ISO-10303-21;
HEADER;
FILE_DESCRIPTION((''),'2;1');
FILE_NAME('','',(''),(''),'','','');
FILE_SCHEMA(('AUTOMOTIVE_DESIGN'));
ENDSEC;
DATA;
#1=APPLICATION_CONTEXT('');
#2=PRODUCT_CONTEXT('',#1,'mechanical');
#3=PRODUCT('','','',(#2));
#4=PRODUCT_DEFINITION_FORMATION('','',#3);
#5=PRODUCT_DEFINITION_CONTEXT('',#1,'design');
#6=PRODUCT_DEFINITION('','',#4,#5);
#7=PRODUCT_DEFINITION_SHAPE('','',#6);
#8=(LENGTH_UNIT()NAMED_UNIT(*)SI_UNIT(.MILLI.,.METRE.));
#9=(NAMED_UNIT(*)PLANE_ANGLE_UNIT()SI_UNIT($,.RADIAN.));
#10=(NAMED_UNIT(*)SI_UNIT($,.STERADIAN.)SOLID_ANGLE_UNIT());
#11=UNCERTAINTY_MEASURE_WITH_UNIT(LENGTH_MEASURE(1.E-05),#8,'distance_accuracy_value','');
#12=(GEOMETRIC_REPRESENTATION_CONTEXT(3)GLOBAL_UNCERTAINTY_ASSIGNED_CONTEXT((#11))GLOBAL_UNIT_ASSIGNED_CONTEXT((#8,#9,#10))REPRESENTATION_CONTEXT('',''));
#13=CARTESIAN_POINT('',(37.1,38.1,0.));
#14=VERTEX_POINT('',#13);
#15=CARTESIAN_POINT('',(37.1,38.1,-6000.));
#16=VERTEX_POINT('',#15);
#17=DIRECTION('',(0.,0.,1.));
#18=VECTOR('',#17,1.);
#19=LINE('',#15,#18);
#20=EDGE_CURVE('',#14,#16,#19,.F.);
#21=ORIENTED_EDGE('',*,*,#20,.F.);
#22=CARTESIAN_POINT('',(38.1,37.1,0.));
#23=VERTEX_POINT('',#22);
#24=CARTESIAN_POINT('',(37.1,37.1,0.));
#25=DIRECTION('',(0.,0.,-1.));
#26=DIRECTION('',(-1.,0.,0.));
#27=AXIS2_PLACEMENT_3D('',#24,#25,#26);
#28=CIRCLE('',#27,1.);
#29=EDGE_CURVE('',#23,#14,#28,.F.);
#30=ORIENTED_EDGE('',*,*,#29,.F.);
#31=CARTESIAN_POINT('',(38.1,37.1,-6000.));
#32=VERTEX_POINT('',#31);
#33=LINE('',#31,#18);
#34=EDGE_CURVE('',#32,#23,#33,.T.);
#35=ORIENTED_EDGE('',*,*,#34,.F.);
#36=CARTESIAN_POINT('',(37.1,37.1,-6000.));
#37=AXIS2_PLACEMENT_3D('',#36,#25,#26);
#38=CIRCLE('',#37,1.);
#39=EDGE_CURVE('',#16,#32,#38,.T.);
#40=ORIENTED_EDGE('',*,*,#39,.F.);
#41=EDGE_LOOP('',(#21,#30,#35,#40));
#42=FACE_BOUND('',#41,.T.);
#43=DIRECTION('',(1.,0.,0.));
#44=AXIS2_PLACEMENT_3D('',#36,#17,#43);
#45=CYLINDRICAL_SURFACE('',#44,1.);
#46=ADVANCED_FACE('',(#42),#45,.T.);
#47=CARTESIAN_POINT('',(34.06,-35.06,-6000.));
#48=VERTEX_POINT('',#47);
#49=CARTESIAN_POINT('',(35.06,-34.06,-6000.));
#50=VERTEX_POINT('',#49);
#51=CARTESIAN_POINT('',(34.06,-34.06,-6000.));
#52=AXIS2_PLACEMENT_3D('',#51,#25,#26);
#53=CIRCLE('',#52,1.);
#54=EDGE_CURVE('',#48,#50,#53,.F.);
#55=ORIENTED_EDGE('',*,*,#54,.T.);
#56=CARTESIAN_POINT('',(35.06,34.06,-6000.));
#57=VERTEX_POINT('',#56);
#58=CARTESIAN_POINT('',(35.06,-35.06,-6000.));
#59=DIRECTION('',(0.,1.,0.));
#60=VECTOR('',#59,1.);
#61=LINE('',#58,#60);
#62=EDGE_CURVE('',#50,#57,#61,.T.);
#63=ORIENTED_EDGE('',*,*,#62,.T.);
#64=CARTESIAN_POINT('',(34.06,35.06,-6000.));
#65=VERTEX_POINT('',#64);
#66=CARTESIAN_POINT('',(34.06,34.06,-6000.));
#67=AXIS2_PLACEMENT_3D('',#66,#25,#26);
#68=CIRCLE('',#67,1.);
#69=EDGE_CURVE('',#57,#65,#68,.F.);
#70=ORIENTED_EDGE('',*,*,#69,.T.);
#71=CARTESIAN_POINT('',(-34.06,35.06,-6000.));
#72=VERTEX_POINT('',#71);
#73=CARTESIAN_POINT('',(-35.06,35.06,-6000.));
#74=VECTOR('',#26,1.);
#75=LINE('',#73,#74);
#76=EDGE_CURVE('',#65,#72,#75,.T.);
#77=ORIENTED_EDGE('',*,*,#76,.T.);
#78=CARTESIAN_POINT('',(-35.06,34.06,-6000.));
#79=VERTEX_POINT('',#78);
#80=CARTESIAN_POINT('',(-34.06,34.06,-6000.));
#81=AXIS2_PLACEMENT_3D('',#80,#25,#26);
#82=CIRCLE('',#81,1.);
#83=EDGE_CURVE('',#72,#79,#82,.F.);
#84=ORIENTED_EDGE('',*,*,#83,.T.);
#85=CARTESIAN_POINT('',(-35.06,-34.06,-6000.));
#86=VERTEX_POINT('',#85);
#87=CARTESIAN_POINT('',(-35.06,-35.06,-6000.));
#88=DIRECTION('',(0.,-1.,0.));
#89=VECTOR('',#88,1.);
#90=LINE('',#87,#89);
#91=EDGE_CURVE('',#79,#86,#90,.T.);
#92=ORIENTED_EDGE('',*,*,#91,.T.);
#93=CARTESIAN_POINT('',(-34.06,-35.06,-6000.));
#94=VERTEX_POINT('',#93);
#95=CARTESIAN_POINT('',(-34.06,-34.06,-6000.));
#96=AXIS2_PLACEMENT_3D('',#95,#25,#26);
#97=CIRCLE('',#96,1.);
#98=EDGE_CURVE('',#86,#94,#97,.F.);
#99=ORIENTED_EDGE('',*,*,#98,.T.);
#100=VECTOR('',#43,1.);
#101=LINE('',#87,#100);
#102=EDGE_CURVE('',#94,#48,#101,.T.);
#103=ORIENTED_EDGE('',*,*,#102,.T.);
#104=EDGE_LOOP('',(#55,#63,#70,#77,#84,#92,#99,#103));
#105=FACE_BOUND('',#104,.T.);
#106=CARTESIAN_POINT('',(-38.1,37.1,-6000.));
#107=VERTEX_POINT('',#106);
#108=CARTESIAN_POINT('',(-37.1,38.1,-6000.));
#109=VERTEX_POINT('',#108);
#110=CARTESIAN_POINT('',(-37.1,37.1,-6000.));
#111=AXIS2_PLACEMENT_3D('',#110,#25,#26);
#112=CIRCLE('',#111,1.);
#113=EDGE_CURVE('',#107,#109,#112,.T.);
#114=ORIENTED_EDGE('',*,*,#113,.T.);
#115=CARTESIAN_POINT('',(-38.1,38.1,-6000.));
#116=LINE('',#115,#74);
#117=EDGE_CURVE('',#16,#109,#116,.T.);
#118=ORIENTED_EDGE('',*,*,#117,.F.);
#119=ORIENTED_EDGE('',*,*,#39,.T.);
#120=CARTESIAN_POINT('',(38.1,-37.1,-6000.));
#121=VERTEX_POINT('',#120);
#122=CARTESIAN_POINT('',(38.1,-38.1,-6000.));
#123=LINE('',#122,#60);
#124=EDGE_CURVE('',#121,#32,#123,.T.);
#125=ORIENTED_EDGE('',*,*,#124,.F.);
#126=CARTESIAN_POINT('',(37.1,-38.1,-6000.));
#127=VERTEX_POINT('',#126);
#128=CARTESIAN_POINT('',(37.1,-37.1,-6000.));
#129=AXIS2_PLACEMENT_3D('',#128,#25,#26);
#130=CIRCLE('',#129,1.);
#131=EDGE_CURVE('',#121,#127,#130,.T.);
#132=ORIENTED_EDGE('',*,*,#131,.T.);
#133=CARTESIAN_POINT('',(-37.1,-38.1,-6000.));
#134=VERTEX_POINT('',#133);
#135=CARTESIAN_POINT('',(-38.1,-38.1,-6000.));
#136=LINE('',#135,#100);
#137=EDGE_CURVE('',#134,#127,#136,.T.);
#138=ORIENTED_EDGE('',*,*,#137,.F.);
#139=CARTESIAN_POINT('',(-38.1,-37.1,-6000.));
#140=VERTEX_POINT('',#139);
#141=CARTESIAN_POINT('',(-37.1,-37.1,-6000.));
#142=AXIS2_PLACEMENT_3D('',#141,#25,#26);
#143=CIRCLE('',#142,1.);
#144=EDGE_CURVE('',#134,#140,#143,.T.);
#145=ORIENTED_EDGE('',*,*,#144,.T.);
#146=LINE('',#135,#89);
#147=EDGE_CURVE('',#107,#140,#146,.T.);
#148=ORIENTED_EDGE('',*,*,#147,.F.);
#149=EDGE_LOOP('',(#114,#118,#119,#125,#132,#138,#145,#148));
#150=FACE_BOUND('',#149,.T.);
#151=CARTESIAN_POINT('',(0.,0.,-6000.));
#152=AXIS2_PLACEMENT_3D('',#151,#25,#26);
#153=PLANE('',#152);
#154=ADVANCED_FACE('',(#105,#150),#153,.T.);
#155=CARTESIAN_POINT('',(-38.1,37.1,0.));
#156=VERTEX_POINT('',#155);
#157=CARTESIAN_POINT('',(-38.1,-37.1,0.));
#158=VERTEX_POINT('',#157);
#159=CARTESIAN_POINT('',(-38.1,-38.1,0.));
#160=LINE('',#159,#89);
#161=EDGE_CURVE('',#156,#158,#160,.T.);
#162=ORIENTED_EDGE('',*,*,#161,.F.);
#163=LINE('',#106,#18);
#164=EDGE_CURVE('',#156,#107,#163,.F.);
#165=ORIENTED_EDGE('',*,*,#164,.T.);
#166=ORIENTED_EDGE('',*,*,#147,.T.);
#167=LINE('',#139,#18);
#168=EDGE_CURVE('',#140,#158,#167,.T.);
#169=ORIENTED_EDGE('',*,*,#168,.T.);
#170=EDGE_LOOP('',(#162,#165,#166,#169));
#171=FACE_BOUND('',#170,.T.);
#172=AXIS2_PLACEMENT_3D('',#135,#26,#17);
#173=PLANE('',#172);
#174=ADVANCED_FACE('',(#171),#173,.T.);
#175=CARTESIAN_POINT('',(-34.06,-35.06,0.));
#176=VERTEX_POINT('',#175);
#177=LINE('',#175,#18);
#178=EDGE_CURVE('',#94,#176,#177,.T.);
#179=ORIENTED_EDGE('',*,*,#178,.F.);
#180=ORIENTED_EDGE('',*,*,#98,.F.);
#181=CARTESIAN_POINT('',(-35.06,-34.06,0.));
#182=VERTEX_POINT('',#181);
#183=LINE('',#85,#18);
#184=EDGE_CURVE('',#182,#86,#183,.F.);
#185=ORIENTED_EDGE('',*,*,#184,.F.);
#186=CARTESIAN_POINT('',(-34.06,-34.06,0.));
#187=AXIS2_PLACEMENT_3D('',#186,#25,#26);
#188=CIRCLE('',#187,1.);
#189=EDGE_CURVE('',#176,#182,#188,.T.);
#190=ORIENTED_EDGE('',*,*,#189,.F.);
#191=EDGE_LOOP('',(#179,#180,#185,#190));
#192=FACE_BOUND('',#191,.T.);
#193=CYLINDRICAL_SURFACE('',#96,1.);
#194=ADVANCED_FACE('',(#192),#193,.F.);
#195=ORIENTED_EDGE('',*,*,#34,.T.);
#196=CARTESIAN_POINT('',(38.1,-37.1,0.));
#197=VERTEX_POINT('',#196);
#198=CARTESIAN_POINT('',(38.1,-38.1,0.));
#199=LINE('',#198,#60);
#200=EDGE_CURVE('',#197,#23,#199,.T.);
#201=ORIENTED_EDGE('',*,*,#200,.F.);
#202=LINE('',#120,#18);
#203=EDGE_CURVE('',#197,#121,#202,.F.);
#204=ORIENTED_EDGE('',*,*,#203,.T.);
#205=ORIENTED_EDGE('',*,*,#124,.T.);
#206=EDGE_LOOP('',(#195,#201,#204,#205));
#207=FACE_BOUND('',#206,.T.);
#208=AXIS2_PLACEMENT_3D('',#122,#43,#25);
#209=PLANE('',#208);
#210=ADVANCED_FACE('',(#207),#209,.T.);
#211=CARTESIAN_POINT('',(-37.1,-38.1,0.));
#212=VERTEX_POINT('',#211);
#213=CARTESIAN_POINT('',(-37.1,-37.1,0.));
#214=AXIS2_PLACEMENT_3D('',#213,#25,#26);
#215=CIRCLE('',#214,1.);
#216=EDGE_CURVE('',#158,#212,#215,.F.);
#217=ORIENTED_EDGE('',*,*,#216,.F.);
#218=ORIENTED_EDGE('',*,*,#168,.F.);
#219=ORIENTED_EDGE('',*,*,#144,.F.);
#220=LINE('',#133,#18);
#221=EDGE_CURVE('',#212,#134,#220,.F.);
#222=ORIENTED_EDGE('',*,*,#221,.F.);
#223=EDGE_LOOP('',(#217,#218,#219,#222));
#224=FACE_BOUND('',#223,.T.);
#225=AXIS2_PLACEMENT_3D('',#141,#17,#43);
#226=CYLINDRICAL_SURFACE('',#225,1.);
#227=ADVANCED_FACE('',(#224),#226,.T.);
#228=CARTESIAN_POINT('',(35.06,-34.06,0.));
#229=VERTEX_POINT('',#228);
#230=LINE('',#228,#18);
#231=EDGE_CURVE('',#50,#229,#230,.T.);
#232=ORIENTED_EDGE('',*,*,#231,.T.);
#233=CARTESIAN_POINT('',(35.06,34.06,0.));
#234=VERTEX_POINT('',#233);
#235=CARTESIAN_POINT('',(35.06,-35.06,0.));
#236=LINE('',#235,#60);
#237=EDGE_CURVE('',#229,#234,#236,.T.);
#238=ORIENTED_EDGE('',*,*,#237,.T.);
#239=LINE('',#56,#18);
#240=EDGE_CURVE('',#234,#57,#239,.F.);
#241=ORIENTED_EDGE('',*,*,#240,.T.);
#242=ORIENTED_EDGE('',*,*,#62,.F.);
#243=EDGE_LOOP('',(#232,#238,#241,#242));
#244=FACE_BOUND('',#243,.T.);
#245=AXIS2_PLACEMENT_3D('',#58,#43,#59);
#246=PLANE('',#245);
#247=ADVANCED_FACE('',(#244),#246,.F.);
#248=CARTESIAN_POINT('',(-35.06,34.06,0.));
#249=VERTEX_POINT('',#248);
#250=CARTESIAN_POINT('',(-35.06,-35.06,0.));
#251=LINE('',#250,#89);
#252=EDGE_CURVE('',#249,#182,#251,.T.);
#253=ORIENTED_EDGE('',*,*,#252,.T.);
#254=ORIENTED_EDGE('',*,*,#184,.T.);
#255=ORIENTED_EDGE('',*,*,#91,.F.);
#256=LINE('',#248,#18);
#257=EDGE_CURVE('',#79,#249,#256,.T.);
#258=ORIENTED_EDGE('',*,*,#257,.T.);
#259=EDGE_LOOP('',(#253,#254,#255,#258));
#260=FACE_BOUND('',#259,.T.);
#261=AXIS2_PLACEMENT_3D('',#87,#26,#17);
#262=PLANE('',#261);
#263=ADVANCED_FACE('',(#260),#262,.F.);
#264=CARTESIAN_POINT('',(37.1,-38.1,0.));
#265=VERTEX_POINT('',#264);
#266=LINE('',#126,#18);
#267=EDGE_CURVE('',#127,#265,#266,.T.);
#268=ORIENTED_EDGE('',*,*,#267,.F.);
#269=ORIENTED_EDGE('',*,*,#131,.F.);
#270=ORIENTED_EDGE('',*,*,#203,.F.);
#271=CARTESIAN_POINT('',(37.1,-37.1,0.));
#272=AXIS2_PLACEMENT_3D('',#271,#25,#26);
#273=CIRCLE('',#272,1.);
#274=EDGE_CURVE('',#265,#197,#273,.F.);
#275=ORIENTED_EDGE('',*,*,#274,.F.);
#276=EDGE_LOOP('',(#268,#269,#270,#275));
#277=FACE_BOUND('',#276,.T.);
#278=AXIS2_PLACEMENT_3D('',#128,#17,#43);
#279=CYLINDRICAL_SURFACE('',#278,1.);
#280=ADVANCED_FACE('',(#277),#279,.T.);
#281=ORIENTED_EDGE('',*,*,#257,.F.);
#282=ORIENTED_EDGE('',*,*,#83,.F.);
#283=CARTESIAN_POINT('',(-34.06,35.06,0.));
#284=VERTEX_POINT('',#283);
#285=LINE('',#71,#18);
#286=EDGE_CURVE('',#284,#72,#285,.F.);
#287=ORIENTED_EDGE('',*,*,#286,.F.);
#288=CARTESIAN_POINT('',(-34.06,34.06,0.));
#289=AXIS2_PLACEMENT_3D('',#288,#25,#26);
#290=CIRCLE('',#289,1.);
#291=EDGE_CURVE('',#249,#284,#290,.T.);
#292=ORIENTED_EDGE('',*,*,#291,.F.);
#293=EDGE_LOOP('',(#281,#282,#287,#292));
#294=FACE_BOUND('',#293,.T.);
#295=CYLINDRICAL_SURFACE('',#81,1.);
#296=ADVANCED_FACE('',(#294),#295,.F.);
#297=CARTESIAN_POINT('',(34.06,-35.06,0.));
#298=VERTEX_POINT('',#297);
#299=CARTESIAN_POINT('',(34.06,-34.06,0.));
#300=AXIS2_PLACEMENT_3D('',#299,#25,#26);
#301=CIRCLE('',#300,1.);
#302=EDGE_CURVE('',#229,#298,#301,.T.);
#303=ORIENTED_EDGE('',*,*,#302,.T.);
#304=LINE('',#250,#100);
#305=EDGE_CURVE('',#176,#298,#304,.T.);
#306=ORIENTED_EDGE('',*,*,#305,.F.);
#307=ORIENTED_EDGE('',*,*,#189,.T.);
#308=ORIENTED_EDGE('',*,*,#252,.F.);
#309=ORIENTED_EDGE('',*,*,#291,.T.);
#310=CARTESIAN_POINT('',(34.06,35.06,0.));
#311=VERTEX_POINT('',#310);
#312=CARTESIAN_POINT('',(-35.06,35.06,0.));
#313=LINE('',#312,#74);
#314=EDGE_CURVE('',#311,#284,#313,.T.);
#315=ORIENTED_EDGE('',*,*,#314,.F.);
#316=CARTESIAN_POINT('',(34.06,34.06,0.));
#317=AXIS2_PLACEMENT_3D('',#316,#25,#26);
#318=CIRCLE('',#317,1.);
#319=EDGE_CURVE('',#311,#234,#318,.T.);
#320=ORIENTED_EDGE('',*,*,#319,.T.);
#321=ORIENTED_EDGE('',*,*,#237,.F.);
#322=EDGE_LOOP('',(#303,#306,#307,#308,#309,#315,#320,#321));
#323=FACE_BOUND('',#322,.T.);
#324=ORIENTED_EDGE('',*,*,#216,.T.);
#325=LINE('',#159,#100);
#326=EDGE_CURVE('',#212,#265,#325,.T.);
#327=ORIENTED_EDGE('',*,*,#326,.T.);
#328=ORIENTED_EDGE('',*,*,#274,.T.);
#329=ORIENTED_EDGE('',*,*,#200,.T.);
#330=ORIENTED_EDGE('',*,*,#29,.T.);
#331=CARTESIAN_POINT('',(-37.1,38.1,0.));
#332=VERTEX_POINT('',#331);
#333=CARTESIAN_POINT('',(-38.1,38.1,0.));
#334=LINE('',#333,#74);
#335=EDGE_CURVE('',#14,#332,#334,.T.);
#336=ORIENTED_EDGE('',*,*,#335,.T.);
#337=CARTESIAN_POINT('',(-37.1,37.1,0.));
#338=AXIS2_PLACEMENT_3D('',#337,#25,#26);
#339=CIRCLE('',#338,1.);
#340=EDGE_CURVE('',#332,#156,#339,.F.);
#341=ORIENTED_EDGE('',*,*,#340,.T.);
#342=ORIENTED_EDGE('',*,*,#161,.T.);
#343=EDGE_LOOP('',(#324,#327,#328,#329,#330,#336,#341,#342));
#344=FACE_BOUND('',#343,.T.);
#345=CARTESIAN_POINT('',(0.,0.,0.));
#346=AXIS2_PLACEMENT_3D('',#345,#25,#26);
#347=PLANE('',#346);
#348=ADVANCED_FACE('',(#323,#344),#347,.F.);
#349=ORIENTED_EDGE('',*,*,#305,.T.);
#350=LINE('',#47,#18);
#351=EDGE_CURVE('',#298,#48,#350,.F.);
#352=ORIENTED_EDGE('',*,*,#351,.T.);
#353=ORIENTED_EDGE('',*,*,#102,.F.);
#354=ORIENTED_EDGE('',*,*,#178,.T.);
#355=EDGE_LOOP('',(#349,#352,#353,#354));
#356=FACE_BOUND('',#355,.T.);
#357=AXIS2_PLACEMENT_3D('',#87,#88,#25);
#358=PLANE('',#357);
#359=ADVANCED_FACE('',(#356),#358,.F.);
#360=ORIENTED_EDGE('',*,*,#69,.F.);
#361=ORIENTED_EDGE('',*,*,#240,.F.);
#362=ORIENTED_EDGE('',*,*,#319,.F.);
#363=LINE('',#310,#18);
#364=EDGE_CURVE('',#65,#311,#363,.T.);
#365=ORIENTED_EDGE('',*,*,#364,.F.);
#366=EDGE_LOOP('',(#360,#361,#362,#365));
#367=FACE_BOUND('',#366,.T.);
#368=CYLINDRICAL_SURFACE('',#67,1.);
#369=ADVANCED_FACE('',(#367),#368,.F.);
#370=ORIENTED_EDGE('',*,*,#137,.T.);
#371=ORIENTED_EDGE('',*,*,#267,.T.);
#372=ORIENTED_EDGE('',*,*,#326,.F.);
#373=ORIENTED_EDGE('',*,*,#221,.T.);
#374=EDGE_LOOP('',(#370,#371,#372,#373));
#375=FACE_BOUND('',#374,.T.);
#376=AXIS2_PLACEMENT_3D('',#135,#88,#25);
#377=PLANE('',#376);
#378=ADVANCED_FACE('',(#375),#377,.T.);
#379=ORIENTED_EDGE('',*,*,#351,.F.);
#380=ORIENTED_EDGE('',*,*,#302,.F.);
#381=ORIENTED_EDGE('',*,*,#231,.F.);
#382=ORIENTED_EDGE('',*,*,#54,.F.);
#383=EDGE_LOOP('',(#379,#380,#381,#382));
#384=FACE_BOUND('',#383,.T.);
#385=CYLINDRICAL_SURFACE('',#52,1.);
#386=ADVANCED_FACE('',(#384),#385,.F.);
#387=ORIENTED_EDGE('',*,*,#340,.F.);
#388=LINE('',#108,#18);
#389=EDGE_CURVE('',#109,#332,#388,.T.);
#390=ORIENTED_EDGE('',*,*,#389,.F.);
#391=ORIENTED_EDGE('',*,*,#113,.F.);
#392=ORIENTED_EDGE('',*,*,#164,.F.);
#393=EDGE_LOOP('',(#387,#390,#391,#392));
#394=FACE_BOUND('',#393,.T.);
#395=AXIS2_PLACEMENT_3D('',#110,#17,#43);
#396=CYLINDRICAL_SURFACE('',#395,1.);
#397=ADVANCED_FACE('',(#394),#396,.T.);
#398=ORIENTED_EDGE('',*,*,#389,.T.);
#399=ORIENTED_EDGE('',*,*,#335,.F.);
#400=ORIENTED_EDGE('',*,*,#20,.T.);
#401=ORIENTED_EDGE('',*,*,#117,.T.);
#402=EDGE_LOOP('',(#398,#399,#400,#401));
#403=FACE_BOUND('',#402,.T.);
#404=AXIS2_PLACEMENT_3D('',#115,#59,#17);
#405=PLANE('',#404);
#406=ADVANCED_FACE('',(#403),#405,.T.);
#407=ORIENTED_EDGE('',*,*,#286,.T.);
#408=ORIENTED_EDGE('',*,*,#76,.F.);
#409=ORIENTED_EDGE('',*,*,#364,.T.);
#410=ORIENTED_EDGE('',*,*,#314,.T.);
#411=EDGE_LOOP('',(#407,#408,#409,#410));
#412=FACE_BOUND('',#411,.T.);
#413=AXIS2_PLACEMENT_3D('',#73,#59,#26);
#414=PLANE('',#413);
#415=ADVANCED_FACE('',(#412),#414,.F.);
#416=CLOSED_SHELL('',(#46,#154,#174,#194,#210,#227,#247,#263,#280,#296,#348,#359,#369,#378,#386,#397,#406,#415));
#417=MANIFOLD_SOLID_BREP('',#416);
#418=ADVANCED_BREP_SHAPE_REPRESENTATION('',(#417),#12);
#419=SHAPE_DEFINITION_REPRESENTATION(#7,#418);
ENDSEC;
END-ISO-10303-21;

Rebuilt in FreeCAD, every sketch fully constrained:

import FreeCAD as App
import Part
import Sketcher
from FreeCAD import Vector


def edges_at(feature, points):
    """Names of the edges that pass closest to the given points."""
    edges = feature.Shape.Edges
    near = lambda p: min(range(len(edges)), key=lambda i: edges[i].distToShape(Part.Vertex(*p))[0])
    return sorted({f"Edge{near(p) + 1}" for p in points})


def add_polygon(sketch, points):
    """Adds a closed chain of lines whose ends are joined by coincident constraints."""
    first, n = sketch.GeometryCount, len(points)
    for a, b in zip(points, points[1:] + points[:1]):
        sketch.addGeometry(Part.LineSegment(App.Vector(*a, 0), App.Vector(*b, 0)), False)
    for i in range(n):
        sketch.addConstraint(Sketcher.Constraint("Coincident", first + i, 2, first + (i + 1) % n, 1))

doc = App.newDocument("Part")
body = doc.addObject("PartDesign::Body", "Body")

# Sketch on XY plane
sketch1 = doc.addObject("Sketcher::SketchObject", "Sketch")
body.addObject(sketch1)
sketch1.AttachmentSupport = (doc.XY_Plane, [""])
sketch1.MapMode = "FlatFace"
add_polygon(sketch1, [(-38.1, 38.1), (-38.1, -38.1), (38.1, -38.1), (38.1, 38.1)])  # lines 0-3
add_polygon(sketch1, [(35.06, -35.06), (-35.06, -35.06), (-35.06, 35.06), (35.06, 35.06)])  # lines 4-7
sketch1.addConstraint(Sketcher.Constraint("Vertical", 0))
sketch1.addConstraint(Sketcher.Constraint("Horizontal", 1))
sketch1.addConstraint(Sketcher.Constraint("Vertical", 2))
sketch1.addConstraint(Sketcher.Constraint("Horizontal", 3))
sketch1.addConstraint(Sketcher.Constraint("Horizontal", 4))
sketch1.addConstraint(Sketcher.Constraint("Vertical", 5))
sketch1.addConstraint(Sketcher.Constraint("Horizontal", 6))
sketch1.addConstraint(Sketcher.Constraint("Vertical", 7))
sketch1.addConstraint(Sketcher.Constraint("Symmetric", 0, 2, 2, 2, -1, 1))
sketch1.addConstraint(Sketcher.Constraint("Symmetric", 4, 2, 6, 2, -1, 1))
sketch1.addConstraint(Sketcher.Constraint("Equal", 3, 0))
sketch1.addConstraint(Sketcher.Constraint("Equal", 6, 5))
sketch1.addConstraint(Sketcher.Constraint("DistanceX", 1, 1, 1, 2, 76.2))
sketch1.addConstraint(Sketcher.Constraint("DistanceX", 4, 2, 4, 1, 70.12))
pad1 = doc.addObject("PartDesign::Pad", "Pad")
body.addObject(pad1)
pad1.Profile = sketch1
pad1.Length = 6000
pad1.Reversed = True
doc.recompute()

fillet = doc.addObject("PartDesign::Fillet", "Fillet")
body.addObject(fillet)
fillet.Base = (pad1, edges_at(pad1, [
    (35.06, -35.06, -3000),
    (-35.06, -35.06, -3000),
    (-35.06, 35.06, -3000),
    (35.06, 35.06, -3000),
    (38.1, -38.1, -3000),
    (-38.1, -38.1, -3000),
    (-38.1, 38.1, -3000),
    (38.1, 38.1, -3000),
]))
fillet.Radius = 1

doc.recompute()
